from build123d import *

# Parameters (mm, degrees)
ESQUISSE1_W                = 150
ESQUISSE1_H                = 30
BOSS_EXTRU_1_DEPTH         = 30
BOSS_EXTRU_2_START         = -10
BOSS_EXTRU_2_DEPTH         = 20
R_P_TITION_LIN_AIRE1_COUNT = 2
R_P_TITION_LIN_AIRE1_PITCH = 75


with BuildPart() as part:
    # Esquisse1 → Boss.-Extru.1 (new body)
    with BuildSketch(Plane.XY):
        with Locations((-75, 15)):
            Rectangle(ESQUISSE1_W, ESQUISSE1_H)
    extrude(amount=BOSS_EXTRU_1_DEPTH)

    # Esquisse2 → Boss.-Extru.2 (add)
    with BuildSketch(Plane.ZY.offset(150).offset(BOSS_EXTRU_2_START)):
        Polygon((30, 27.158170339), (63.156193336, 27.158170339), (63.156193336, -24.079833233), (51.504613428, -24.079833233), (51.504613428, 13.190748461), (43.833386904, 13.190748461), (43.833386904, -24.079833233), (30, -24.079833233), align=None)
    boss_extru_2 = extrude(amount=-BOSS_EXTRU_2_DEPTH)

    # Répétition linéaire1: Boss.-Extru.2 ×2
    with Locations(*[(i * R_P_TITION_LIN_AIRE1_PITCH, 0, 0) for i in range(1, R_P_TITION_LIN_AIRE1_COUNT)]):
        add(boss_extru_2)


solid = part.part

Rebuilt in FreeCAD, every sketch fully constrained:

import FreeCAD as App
import Part
import Sketcher
from FreeCAD import Vector

doc = App.newDocument("Part")
body = doc.addObject("PartDesign::Body", "Body")

# Sketch on XY plane
sketch1 = doc.addObject("Sketcher::SketchObject", "Sketch")
body.addObject(sketch1)
sketch1.AttachmentSupport = (doc.XY_Plane, [""])
sketch1.MapMode = "FlatFace"
sketch1.addGeometry([
    Part.LineSegment(Vector(-150, 30, 0), Vector(-150, 0, 0)),
    Part.LineSegment(Vector(-150, 0, 0), Vector(0, 0, 0)),
    Part.LineSegment(Vector(0, 0, 0), Vector(0, 30, 0)),
    Part.LineSegment(Vector(0, 30, 0), Vector(-150, 30, 0)),
], False)
sketch1.addConstraint([
    Sketcher.Constraint("Coincident", 0, 2, 1, 1),
    Sketcher.Constraint("Coincident", 1, 2, 2, 1),
    Sketcher.Constraint("Coincident", 2, 2, 3, 1),
    Sketcher.Constraint("Coincident", 3, 2, 0, 1),
    Sketcher.Constraint("Vertical", 0),
    Sketcher.Constraint("Horizontal", 1),
    Sketcher.Constraint("Vertical", 2),
    Sketcher.Constraint("Horizontal", 3),
    Sketcher.Constraint("Coincident", 1, 2, -1, 1),
    Sketcher.Constraint("DistanceX", 1, 1, 1, 2, 150.0),
    Sketcher.Constraint("DistanceY", 0, 2, 0, 1, 30.0),
])
pad1 = doc.addObject("PartDesign::Pad", "Pad")
body.addObject(pad1)
pad1.Profile = sketch1
pad1.Length = 30

# Sketch on YZ plane
sketch2 = doc.addObject("Sketcher::SketchObject", "Sketch001")
body.addObject(sketch2)
sketch2.AttachmentSupport = (doc.YZ_Plane, [""])
sketch2.MapMode = "FlatFace"
sketch2.AttachmentOffset = App.Placement(Vector(0, 0, -140), App.Rotation())
sketch2.addGeometry([
    Part.LineSegment(Vector(27.15817, 63.156193, 0), Vector(27.15817, 30, 0)),  # 0
    Part.LineSegment(Vector(27.15817, 30, 0), Vector(-24.079833, 30, 0)),  # 1
    Part.LineSegment(Vector(-24.079833, 30, 0), Vector(-24.079833, 43.833387, 0)),  # 2
    Part.LineSegment(Vector(-24.079833, 43.833387, 0), Vector(13.190748, 43.833387, 0)),  # 3
    Part.LineSegment(Vector(13.190748, 43.833387, 0), Vector(13.190748, 51.504613, 0)),  # 4
    Part.LineSegment(Vector(13.190748, 51.504613, 0), Vector(-24.079833, 51.504613, 0)),  # 5
    Part.LineSegment(Vector(-24.079833, 51.504613, 0), Vector(-24.079833, 63.156193, 0)),  # 6
    Part.LineSegment(Vector(-24.079833, 63.156193, 0), Vector(27.15817, 63.156193, 0)),  # 7
], False)
sketch2.addConstraint([
    Sketcher.Constraint("Coincident", 0, 2, 1, 1),
    Sketcher.Constraint("Coincident", 1, 2, 2, 1),
    Sketcher.Constraint("Coincident", 2, 2, 3, 1),
    Sketcher.Constraint("Coincident", 3, 2, 4, 1),
    Sketcher.Constraint("Coincident", 4, 2, 5, 1),
    Sketcher.Constraint("Coincident", 5, 2, 6, 1),
    Sketcher.Constraint("Coincident", 6, 2, 7, 1),
    Sketcher.Constraint("Coincident", 7, 2, 0, 1),
    Sketcher.Constraint("Vertical", 0),
    Sketcher.Constraint("Horizontal", 1),
    Sketcher.Constraint("Vertical", 2),
    Sketcher.Constraint("Horizontal", 3),
    Sketcher.Constraint("Vertical", 4),
    Sketcher.Constraint("Horizontal", 5),
    Sketcher.Constraint("Vertical", 6),
    Sketcher.Constraint("Horizontal", 7),
    Sketcher.Constraint("Vertical", 2, 2, 5, 2),
    Sketcher.Constraint("DistanceY", -1, 1, 0, 2, 30.0),
    Sketcher.Constraint("DistanceX", 3, 1, 3, 2, 37.270582),
    Sketcher.Constraint("DistanceY", 6, 1, 6, 2, 11.65158),
    Sketcher.Constraint("DistanceX", 1, 2, 1, 1, 51.238004),
    Sketcher.Constraint("DistanceY", 0, 2, 0, 1, 33.156193),
    Sketcher.Constraint("DistanceY", 2, 1, 2, 2, 13.833387),
    Sketcher.Constraint("DistanceX", -1, 1, 0, 2, 27.15817),
])
pad2 = doc.addObject("PartDesign::Pad", "Pad001")
body.addObject(pad2)
pad2.Profile = sketch2
pad2.Length = 20
doc.recompute()

linearpattern = doc.addObject("PartDesign::LinearPattern", "LinearPattern")
body.addObject(linearpattern)
linearpattern.Originals = [pad2]
linearpattern.Direction = (doc.X_Axis, [""])
linearpattern.Mode = "offset"
linearpattern.Offset = 75
linearpattern.Occurrences = 2
body.Tip = linearpattern

doc.recompute()
